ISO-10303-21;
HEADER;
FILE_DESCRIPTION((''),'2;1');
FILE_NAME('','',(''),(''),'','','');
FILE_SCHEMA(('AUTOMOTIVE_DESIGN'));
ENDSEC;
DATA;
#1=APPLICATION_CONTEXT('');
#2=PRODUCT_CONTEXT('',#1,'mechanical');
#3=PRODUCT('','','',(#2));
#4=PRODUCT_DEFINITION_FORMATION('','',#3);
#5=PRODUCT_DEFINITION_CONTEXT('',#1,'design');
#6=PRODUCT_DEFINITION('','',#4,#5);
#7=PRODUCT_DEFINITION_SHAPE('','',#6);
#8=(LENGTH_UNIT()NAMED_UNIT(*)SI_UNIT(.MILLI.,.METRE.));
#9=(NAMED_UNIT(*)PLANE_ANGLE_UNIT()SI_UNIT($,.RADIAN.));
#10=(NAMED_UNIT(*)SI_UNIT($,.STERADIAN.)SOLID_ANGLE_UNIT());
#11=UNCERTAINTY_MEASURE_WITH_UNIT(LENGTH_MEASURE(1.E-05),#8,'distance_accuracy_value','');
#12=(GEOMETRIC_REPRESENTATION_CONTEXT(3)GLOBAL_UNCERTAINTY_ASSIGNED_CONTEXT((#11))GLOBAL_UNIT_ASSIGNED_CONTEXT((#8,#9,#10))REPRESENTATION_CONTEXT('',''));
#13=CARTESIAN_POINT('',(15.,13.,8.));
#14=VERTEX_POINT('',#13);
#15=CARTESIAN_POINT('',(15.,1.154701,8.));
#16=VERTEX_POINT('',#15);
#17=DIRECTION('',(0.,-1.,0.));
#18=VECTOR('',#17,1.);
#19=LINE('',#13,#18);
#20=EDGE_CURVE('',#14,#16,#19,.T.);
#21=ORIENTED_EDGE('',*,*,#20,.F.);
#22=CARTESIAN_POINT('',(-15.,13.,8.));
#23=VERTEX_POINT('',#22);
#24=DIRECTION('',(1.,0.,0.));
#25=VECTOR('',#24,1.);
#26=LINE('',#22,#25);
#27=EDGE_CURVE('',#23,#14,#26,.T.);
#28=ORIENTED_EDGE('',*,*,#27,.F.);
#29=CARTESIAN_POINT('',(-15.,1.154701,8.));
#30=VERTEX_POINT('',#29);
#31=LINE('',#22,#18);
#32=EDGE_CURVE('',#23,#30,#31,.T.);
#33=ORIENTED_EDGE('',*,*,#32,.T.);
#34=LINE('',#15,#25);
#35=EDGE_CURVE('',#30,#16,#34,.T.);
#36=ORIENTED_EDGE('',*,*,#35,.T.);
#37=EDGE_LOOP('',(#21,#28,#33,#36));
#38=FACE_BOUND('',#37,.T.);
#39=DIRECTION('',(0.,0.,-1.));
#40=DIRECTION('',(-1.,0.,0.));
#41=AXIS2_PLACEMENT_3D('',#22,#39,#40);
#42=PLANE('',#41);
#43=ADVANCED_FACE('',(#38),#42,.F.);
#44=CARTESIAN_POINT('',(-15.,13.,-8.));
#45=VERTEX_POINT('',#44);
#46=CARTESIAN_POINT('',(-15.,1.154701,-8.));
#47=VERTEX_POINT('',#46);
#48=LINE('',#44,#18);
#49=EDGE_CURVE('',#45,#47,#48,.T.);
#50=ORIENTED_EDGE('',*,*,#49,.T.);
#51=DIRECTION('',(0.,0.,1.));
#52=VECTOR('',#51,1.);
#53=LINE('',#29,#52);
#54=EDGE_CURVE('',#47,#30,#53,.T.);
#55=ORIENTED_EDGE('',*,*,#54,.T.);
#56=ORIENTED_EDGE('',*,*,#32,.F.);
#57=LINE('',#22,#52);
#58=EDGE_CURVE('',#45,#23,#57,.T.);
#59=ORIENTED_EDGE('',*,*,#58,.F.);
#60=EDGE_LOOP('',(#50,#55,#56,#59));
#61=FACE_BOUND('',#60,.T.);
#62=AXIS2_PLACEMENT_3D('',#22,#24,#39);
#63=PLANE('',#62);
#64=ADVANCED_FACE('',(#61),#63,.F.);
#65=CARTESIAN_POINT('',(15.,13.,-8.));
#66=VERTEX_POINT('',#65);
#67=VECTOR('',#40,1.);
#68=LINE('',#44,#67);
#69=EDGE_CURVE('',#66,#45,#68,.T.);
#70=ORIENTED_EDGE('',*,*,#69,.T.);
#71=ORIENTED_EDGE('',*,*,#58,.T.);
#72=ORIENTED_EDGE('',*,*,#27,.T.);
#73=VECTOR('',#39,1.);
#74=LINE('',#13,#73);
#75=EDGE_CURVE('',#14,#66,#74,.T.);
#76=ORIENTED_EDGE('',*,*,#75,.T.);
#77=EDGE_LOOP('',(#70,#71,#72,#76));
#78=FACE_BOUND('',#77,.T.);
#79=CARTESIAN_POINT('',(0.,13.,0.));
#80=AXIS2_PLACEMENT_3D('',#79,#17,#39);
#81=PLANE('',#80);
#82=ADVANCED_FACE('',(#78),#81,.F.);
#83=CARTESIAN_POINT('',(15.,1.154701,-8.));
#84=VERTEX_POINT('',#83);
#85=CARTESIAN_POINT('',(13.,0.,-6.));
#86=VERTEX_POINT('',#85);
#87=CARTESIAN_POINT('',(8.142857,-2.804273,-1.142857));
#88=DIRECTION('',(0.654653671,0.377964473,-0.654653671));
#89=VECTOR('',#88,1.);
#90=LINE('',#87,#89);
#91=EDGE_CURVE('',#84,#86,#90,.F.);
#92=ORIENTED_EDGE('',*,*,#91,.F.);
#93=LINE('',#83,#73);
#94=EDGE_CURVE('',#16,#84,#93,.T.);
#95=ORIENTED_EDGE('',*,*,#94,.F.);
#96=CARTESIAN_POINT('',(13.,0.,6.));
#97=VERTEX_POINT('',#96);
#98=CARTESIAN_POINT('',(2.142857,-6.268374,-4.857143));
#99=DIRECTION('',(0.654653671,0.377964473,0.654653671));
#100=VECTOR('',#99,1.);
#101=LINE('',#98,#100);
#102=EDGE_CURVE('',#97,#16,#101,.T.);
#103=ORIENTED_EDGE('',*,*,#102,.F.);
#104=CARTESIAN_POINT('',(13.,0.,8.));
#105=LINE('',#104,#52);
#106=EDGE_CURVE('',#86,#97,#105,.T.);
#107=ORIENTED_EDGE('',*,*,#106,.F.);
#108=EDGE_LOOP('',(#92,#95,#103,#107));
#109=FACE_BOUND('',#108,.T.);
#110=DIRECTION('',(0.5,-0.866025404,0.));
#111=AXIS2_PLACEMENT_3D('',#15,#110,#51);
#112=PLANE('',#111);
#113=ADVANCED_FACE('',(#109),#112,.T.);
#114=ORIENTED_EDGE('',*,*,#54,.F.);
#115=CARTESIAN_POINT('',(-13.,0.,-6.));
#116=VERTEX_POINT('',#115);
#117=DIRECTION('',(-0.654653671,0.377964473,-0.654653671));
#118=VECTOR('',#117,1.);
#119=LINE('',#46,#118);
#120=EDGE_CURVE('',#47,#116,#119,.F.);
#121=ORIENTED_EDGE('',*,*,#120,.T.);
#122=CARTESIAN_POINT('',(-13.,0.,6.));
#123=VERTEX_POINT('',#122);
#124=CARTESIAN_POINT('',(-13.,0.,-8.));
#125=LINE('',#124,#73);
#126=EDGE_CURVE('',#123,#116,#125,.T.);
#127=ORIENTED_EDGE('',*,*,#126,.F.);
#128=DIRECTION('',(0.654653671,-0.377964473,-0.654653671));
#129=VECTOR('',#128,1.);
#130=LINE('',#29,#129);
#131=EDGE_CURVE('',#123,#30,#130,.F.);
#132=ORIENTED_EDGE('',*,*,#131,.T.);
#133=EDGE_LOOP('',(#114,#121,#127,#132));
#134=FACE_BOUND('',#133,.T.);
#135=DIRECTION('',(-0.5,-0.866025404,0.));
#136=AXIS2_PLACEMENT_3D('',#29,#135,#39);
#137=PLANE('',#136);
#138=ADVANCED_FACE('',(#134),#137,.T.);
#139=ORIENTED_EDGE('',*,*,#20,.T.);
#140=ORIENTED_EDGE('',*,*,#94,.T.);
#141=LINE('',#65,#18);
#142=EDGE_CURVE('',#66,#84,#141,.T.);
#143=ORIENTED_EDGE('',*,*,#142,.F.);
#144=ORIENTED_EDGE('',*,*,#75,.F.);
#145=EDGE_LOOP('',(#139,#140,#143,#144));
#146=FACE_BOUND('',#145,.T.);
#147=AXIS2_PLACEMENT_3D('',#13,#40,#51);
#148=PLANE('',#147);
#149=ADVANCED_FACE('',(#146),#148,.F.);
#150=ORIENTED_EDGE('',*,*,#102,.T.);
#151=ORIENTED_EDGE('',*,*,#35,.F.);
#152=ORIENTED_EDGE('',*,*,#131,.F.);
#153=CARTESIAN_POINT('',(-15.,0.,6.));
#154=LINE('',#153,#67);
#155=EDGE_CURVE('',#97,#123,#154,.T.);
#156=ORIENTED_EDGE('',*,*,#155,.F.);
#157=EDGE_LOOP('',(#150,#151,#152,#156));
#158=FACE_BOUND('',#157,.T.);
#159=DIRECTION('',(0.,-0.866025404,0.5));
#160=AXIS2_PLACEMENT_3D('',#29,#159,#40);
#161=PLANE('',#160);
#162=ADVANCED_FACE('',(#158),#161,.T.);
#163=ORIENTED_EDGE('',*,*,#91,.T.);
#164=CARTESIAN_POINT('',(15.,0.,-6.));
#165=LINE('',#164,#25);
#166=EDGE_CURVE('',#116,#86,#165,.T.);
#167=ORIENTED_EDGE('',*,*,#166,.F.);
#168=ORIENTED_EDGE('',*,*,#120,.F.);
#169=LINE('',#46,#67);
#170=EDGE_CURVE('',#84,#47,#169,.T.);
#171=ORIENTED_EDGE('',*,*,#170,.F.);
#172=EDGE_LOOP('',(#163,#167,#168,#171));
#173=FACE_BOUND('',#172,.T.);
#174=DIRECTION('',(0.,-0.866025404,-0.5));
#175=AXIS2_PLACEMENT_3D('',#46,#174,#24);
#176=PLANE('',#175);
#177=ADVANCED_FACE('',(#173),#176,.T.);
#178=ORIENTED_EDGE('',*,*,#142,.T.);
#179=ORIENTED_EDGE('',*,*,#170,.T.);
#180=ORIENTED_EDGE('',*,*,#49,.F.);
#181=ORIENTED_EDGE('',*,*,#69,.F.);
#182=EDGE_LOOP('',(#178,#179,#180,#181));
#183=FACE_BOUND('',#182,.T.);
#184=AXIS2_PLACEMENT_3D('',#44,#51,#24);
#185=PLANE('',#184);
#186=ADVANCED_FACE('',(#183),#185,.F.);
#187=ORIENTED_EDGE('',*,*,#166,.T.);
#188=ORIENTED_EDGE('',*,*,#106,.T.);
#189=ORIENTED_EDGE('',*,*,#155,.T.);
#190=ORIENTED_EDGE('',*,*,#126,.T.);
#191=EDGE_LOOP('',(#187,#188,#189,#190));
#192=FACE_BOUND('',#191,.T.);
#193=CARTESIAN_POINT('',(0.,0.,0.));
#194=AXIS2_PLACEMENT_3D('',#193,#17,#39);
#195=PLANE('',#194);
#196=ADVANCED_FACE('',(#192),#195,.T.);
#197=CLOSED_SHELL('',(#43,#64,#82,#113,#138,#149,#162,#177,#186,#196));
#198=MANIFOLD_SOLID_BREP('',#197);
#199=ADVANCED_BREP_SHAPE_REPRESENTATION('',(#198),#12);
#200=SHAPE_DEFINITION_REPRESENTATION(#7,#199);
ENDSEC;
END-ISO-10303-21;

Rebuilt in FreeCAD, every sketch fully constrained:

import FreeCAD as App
import Part
import Sketcher
from FreeCAD import Vector
Q = App.Units.Quantity


def edges_at(feature, points):
    """Names of the edges that pass closest to the given points."""
    edges = feature.Shape.Edges
    near = lambda p: min(range(len(edges)), key=lambda i: edges[i].distToShape(Part.Vertex(*p))[0])
    return sorted({f"Edge{near(p) + 1}" for p in points})


def add_polygon(sketch, points):
    """Adds a closed chain of lines whose ends are joined by coincident constraints."""
    first, n = sketch.GeometryCount, len(points)
    for a, b in zip(points, points[1:] + points[:1]):
        sketch.addGeometry(Part.LineSegment(App.Vector(*a, 0), App.Vector(*b, 0)), False)
    for i in range(n):
        sketch.addConstraint(Sketcher.Constraint("Coincident", first + i, 2, first + (i + 1) % n, 1))

doc = App.newDocument("Part")
body = doc.addObject("PartDesign::Body", "Body")

# Sketch on XZ plane
sketch1 = body.newObject("Sketcher::SketchObject", "Sketch")
sketch1.AttachmentSupport = (doc.getObject("XZ_Plane"), [""])
sketch1.MapMode = "FlatFace"
add_polygon(sketch1, [(-15, -8), (-15, 8), (15, 8), (15, -8)])  # lines 0-3
sketch1.addConstraint([
    Sketcher.Constraint("Vertical", 0),
    Sketcher.Constraint("Horizontal", 1),
    Sketcher.Constraint("Vertical", 2),
    Sketcher.Constraint("Horizontal", 3),
    Sketcher.Constraint("Symmetric", 0, 2, 2, 2, -1, 1),
    Sketcher.Constraint("DistanceX", 1, 1, 1, 2, Q("30 mm")),
    Sketcher.Constraint("DistanceY", 0, 1, 0, 2, Q("16 mm")),
])
pad1 = body.newObject("PartDesign::Pad", "Pad")
pad1.Profile = sketch1
pad1.Length = 13
pad1.Reversed = True
doc.recompute()

chamfer = body.newObject("PartDesign::Chamfer", "Chamfer")
chamfer.Base = (pad1, edges_at(pad1, [
    (0, 0, 8),
    (-15, 0, 0),
    (0, 0, -8),
    (15, 0, 0),
]))
chamfer.ChamferType = "Two distances"
chamfer.Size = 2
chamfer.Size2 = 1.154701
chamfer.FlipDirection = True

doc.recompute()
